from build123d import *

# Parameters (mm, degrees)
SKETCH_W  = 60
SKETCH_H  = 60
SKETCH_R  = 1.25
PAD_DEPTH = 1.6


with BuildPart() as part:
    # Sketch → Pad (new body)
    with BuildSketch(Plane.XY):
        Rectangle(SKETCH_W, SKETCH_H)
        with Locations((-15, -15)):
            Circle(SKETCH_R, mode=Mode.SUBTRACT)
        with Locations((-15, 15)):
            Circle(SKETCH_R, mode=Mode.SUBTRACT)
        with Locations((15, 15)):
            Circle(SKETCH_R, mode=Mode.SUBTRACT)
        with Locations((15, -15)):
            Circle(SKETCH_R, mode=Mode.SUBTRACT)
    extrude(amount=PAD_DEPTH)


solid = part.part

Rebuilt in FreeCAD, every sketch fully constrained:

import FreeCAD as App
import Part
import Sketcher
from FreeCAD import Vector
Q = App.Units.Quantity

doc = App.newDocument("Part")
body = doc.addObject("PartDesign::Body", "Body")

sketch1 = body.newObject("Sketcher::SketchObject", "Sketch")
sketch1.AttachmentSupport = (doc.getObject("XY_Plane"), [""])
sketch1.MapMode = "FlatFace"
sketch1.addGeometry(Part.LineSegment(Vector(-30, 30, 0), Vector(-30, -30, 0)), False)
sketch1.addGeometry(Part.LineSegment(Vector(-30, -30, 0), Vector(30, -30, 0)), False)
sketch1.addGeometry(Part.LineSegment(Vector(30, -30, 0), Vector(30, 30, 0)), False)
sketch1.addGeometry(Part.LineSegment(Vector(30, 30, 0), Vector(-30, 30, 0)), False)
sketch1.addGeometry(Part.Circle(Vector(-15, -15, 0), Vector(0, 0, 1), 1.2), False)
sketch1.addGeometry(Part.Circle(Vector(15, -15, 0), Vector(0, 0, 1), 1.2), False)
sketch1.addGeometry(Part.Circle(Vector(-15, 15, 0), Vector(0, 0, 1), 1.2), False)
sketch1.addGeometry(Part.Circle(Vector(15, 15, 0), Vector(0, 0, 1), 1.2), False)
sketch1.addConstraint(Sketcher.Constraint("Coincident", 0, 2, 1, 1))
sketch1.addConstraint(Sketcher.Constraint("Coincident", 1, 2, 2, 1))
sketch1.addConstraint(Sketcher.Constraint("Coincident", 2, 2, 3, 1))
sketch1.addConstraint(Sketcher.Constraint("Coincident", 3, 2, 0, 1))
sketch1.addConstraint(Sketcher.Constraint("Vertical", 0))
sketch1.addConstraint(Sketcher.Constraint("Horizontal", 1))
sketch1.addConstraint(Sketcher.Constraint("Vertical", 2))
sketch1.addConstraint(Sketcher.Constraint("Horizontal", 3))
sketch1.addConstraint(Sketcher.Constraint("Equal", 4, 5))
sketch1.addConstraint(Sketcher.Constraint("Equal", 5, 6))
sketch1.addConstraint(Sketcher.Constraint("Equal", 6, 7))
sketch1.addConstraint(Sketcher.Constraint("Symmetric", 5, 3, 6, 3, -1, 1))
sketch1.addConstraint(Sketcher.Constraint("Symmetric", 4, 3, 7, 3, -1, 1))
sketch1.addConstraint(Sketcher.Constraint("Symmetric", 0, 2, 2, 2, -1, 1))
sketch1.addConstraint(Sketcher.Constraint("Symmetric", 4, 3, 5, 3, -2))
sketch1.addConstraint(Sketcher.Constraint("Equal", 3, 0))
sketch1.addConstraint(Sketcher.Constraint("Diameter", 4, Q("2.5 mm")))
sketch1.addConstraint(Sketcher.Constraint("DistanceX", 1, 1, 1, 2, Q("60 mm")))
sketch1.addConstraint(Sketcher.Constraint("DistanceX", 4, 3, -1, 1, Q("15 mm")))
sketch1.addConstraint(Sketcher.Constraint("DistanceY", 4, 3, -1, 1, Q("15 mm")))
pad1 = body.newObject("PartDesign::Pad", "Pad")
pad1.Profile = sketch1
pad1.Length = 1.6

doc.recompute()
